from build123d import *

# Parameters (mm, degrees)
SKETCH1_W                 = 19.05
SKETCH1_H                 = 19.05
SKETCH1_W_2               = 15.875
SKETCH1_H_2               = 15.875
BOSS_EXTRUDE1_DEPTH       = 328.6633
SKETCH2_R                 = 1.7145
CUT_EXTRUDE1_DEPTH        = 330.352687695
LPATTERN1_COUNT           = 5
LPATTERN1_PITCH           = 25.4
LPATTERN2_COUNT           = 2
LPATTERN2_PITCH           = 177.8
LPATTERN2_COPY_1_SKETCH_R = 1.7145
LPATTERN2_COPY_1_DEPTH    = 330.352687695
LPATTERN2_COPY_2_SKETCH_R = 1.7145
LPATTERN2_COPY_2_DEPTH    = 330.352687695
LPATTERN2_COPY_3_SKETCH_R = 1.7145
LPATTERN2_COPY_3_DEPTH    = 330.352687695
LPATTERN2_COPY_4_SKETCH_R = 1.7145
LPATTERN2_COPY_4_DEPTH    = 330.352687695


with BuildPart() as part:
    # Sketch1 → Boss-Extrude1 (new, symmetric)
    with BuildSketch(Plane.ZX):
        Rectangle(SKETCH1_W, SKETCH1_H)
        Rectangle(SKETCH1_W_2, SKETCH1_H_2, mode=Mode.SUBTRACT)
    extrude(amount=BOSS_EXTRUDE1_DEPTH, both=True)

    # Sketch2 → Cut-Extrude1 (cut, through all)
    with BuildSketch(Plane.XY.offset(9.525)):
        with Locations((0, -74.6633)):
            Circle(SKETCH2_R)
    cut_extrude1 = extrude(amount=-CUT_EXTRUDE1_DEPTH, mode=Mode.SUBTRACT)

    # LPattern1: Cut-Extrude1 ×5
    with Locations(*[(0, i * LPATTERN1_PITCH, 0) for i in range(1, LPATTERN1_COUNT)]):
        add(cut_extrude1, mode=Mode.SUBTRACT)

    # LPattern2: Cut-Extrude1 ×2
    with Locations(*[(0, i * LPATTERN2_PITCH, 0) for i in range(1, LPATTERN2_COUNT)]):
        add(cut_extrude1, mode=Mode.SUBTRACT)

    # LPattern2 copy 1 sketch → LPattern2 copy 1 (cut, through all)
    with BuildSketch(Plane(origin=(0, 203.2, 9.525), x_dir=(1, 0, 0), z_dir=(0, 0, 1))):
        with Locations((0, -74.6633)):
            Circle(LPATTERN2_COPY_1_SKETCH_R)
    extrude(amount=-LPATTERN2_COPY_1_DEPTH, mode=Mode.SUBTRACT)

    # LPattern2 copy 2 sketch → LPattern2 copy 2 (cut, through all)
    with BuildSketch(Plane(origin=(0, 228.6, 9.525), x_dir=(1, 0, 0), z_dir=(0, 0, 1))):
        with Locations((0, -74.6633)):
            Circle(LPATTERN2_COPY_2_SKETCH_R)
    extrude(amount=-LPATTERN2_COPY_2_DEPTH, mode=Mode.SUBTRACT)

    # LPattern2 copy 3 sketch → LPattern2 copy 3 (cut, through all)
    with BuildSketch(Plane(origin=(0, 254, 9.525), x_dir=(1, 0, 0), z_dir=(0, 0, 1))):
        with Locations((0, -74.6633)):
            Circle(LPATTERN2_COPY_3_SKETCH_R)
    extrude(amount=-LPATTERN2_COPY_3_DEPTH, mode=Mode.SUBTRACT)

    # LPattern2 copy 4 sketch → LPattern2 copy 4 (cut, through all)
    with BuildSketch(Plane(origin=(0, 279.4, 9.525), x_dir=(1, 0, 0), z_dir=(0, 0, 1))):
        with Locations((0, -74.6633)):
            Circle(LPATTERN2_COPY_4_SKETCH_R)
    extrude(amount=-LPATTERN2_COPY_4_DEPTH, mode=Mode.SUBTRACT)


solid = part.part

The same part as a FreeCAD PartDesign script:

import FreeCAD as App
import Part
import Sketcher
Q = App.Units.Quantity

doc = App.newDocument("Part")
params = doc.addObject("Spreadsheet::Sheet", "Params")
for row, (alias, value) in enumerate([
    ("sketch1_width", "0.75 in"),
    ("sketch1_width2", "0.625 in"),
    ("pad1_length", "25.879 in"),
    ("sketch2_diameter", "0.135 in"),
    ("linearpattern_pitch", "1 in"),
    ("linearpattern2_pitch", "7 in"),
    ("sketch3_diameter", "0.135 in"),
    ("sketch4_diameter", "0.135 in"),
    ("sketch5_diameter", "0.135 in"),
    ("sketch6_diameter", "0.135 in"),
], start=1):
    params.set(f"A{row}", alias)
    params.set(f"B{row}", "=" + value)
    params.setAlias(f"B{row}", alias)

body = doc.addObject("PartDesign::Body", "Body")

# Sketch on XZ plane
sketch1 = body.newObject("Sketcher::SketchObject", "Sketch")
sketch1.AttachmentSupport = (doc.getObject("XZ_Plane"), [""])
sketch1.MapMode = "FlatFace"
sketch1.addGeometry([
    Part.LineSegment(App.Vector(10, -10, 0), App.Vector(-10, -10, 0)),  # 0
    Part.LineSegment(App.Vector(-10, -10, 0), App.Vector(-10, 10, 0)),  # 1
    Part.LineSegment(App.Vector(-10, 10, 0), App.Vector(10, 10, 0)),  # 2
    Part.LineSegment(App.Vector(10, 10, 0), App.Vector(10, -10, 0)),  # 3
    Part.LineSegment(App.Vector(-8, 8, 0), App.Vector(-8, -8, 0)),  # 4
    Part.LineSegment(App.Vector(-8, -8, 0), App.Vector(8, -8, 0)),  # 5
    Part.LineSegment(App.Vector(8, -8, 0), App.Vector(8, 8, 0)),  # 6
    Part.LineSegment(App.Vector(8, 8, 0), App.Vector(-8, 8, 0)),  # 7
], False)
sketch1.addConstraint([
    Sketcher.Constraint("Coincident", 0, 2, 1, 1),
    Sketcher.Constraint("Coincident", 1, 2, 2, 1),
    Sketcher.Constraint("Coincident", 2, 2, 3, 1),
    Sketcher.Constraint("Coincident", 3, 2, 0, 1),
    Sketcher.Constraint("Coincident", 4, 2, 5, 1),
    Sketcher.Constraint("Coincident", 5, 2, 6, 1),
    Sketcher.Constraint("Coincident", 6, 2, 7, 1),
    Sketcher.Constraint("Coincident", 7, 2, 4, 1),
    Sketcher.Constraint("Horizontal", 0),
    Sketcher.Constraint("Vertical", 1),
    Sketcher.Constraint("Horizontal", 2),
    Sketcher.Constraint("Vertical", 3),
    Sketcher.Constraint("Vertical", 4),
    Sketcher.Constraint("Horizontal", 5),
    Sketcher.Constraint("Vertical", 6),
    Sketcher.Constraint("Horizontal", 7),
    Sketcher.Constraint("Symmetric", 0, 2, 2, 2, -1, 1),
    Sketcher.Constraint("Symmetric", 4, 2, 6, 2, -1, 1),
    Sketcher.Constraint("Equal", 2, 1),
    Sketcher.Constraint("Equal", 7, 4),
    Sketcher.Constraint("DistanceX", 0, 2, 0, 1, Q("0.75 in")),
    Sketcher.Constraint("DistanceX", 5, 1, 5, 2, Q("0.625 in")),
])
sketch1.setExpression("Constraints[20]", "Params.sketch1_width")
sketch1.setExpression("Constraints[21]", "Params.sketch1_width2")
pad1 = body.newObject("PartDesign::Pad", "Pad")
pad1.Profile = sketch1
pad1.setExpression("Length", "Params.pad1_length")
pad1.Midplane = True

# Sketch on XY plane
sketch2 = body.newObject("Sketcher::SketchObject", "Sketch001")
sketch2.AttachmentSupport = (doc.getObject("XY_Plane"), [""])
sketch2.MapMode = "FlatFace"
sketch2.AttachmentOffset = App.Placement(App.Vector(0, 0, 0.375 * 25.4), App.Rotation())
sketch2.addGeometry(Part.Circle(App.Vector(0, -74.7, 0), App.Vector(0, 0, 1), 1.7), False)
sketch2.addConstraint([
    Sketcher.Constraint("PointOnObject", 0, 3, -2),
    Sketcher.Constraint("Diameter", 0, Q("0.135 in")),
    Sketcher.Constraint("DistanceY", 0, 3, -1, 1, Q("2.9395 in")),
])
sketch2.setExpression("Constraints[1]", "Params.sketch2_diameter")
pocket1 = body.newObject("PartDesign::Pocket", "Pocket")
pocket1.Profile = sketch2
pocket1.Type = "ThroughAll"
doc.recompute()

linearpattern = body.newObject("PartDesign::LinearPattern", "LinearPattern")
linearpattern.Originals = [pocket1]
linearpattern.Direction = (doc.getObject("Y_Axis"), [""])
linearpattern.Mode = "offset"
linearpattern.setExpression("Offset", "Params.linearpattern_pitch")
linearpattern.Occurrences = 5
body.Tip = linearpattern
doc.recompute()

linearpattern2 = body.newObject("PartDesign::LinearPattern", "LinearPattern001")
linearpattern2.Originals = [pocket1]
linearpattern2.Direction = (doc.getObject("Y_Axis"), [""])
linearpattern2.Mode = "offset"
linearpattern2.setExpression("Offset", "Params.linearpattern2_pitch")
linearpattern2.Occurrences = 2
body.Tip = linearpattern2

# Sketch on XY plane
sketch3 = body.newObject("Sketcher::SketchObject", "Sketch002")
sketch3.AttachmentSupport = (doc.getObject("XY_Plane"), [""])
sketch3.MapMode = "FlatFace"
sketch3.AttachmentOffset = App.Placement(App.Vector(0, 0, 0.375 * 25.4), App.Rotation())
sketch3.addGeometry(Part.Circle(App.Vector(0, 128.5, 0), App.Vector(0, 0, 1), 1.7), False)
sketch3.addConstraint([
    Sketcher.Constraint("PointOnObject", 0, 3, -2),
    Sketcher.Constraint("Diameter", 0, Q("0.135 in")),
    Sketcher.Constraint("DistanceY", -1, 1, 0, 3, Q("5.0605 in")),
])
sketch3.setExpression("Constraints[1]", "Params.sketch3_diameter")
pocket2 = body.newObject("PartDesign::Pocket", "Pocket001")
pocket2.Profile = sketch3
pocket2.Type = "ThroughAll"

# Sketch on XY plane
sketch4 = body.newObject("Sketcher::SketchObject", "Sketch003")
sketch4.AttachmentSupport = (doc.getObject("XY_Plane"), [""])
sketch4.MapMode = "FlatFace"
sketch4.AttachmentOffset = App.Placement(App.Vector(0, 0, 0.375 * 25.4), App.Rotation())
sketch4.addGeometry(Part.Circle(App.Vector(0, 153.9, 0), App.Vector(0, 0, 1), 1.7), False)
sketch4.addConstraint([
    Sketcher.Constraint("PointOnObject", 0, 3, -2),
    Sketcher.Constraint("Diameter", 0, Q("0.135 in")),
    Sketcher.Constraint("DistanceY", -1, 1, 0, 3, Q("6.0605 in")),
])
sketch4.setExpression("Constraints[1]", "Params.sketch4_diameter")
pocket3 = body.newObject("PartDesign::Pocket", "Pocket002")
pocket3.Profile = sketch4
pocket3.Type = "ThroughAll"

# Sketch on XY plane
sketch5 = body.newObject("Sketcher::SketchObject", "Sketch004")
sketch5.AttachmentSupport = (doc.getObject("XY_Plane"), [""])
sketch5.MapMode = "FlatFace"
sketch5.AttachmentOffset = App.Placement(App.Vector(0, 0, 0.375 * 25.4), App.Rotation())
sketch5.addGeometry(Part.Circle(App.Vector(0, 179.3, 0), App.Vector(0, 0, 1), 1.7), False)
sketch5.addConstraint([
    Sketcher.Constraint("PointOnObject", 0, 3, -2),
    Sketcher.Constraint("Diameter", 0, Q("0.135 in")),
    Sketcher.Constraint("DistanceY", -1, 1, 0, 3, Q("7.0605 in")),
])
sketch5.setExpression("Constraints[1]", "Params.sketch5_diameter")
pocket4 = body.newObject("PartDesign::Pocket", "Pocket003")
pocket4.Profile = sketch5
pocket4.Type = "ThroughAll"

# Sketch on XY plane
sketch6 = body.newObject("Sketcher::SketchObject", "Sketch005")
sketch6.AttachmentSupport = (doc.getObject("XY_Plane"), [""])
sketch6.MapMode = "FlatFace"
sketch6.AttachmentOffset = App.Placement(App.Vector(0, 0, 0.375 * 25.4), App.Rotation())
sketch6.addGeometry(Part.Circle(App.Vector(0, 204.7, 0), App.Vector(0, 0, 1), 1.7), False)
sketch6.addConstraint([
    Sketcher.Constraint("PointOnObject", 0, 3, -2),
    Sketcher.Constraint("Diameter", 0, Q("0.135 in")),
    Sketcher.Constraint("DistanceY", -1, 1, 0, 3, Q("8.0605 in")),
])
sketch6.setExpression("Constraints[1]", "Params.sketch6_diameter")
pocket5 = body.newObject("PartDesign::Pocket", "Pocket004")
pocket5.Profile = sketch6
pocket5.Type = "ThroughAll"

doc.recompute()
